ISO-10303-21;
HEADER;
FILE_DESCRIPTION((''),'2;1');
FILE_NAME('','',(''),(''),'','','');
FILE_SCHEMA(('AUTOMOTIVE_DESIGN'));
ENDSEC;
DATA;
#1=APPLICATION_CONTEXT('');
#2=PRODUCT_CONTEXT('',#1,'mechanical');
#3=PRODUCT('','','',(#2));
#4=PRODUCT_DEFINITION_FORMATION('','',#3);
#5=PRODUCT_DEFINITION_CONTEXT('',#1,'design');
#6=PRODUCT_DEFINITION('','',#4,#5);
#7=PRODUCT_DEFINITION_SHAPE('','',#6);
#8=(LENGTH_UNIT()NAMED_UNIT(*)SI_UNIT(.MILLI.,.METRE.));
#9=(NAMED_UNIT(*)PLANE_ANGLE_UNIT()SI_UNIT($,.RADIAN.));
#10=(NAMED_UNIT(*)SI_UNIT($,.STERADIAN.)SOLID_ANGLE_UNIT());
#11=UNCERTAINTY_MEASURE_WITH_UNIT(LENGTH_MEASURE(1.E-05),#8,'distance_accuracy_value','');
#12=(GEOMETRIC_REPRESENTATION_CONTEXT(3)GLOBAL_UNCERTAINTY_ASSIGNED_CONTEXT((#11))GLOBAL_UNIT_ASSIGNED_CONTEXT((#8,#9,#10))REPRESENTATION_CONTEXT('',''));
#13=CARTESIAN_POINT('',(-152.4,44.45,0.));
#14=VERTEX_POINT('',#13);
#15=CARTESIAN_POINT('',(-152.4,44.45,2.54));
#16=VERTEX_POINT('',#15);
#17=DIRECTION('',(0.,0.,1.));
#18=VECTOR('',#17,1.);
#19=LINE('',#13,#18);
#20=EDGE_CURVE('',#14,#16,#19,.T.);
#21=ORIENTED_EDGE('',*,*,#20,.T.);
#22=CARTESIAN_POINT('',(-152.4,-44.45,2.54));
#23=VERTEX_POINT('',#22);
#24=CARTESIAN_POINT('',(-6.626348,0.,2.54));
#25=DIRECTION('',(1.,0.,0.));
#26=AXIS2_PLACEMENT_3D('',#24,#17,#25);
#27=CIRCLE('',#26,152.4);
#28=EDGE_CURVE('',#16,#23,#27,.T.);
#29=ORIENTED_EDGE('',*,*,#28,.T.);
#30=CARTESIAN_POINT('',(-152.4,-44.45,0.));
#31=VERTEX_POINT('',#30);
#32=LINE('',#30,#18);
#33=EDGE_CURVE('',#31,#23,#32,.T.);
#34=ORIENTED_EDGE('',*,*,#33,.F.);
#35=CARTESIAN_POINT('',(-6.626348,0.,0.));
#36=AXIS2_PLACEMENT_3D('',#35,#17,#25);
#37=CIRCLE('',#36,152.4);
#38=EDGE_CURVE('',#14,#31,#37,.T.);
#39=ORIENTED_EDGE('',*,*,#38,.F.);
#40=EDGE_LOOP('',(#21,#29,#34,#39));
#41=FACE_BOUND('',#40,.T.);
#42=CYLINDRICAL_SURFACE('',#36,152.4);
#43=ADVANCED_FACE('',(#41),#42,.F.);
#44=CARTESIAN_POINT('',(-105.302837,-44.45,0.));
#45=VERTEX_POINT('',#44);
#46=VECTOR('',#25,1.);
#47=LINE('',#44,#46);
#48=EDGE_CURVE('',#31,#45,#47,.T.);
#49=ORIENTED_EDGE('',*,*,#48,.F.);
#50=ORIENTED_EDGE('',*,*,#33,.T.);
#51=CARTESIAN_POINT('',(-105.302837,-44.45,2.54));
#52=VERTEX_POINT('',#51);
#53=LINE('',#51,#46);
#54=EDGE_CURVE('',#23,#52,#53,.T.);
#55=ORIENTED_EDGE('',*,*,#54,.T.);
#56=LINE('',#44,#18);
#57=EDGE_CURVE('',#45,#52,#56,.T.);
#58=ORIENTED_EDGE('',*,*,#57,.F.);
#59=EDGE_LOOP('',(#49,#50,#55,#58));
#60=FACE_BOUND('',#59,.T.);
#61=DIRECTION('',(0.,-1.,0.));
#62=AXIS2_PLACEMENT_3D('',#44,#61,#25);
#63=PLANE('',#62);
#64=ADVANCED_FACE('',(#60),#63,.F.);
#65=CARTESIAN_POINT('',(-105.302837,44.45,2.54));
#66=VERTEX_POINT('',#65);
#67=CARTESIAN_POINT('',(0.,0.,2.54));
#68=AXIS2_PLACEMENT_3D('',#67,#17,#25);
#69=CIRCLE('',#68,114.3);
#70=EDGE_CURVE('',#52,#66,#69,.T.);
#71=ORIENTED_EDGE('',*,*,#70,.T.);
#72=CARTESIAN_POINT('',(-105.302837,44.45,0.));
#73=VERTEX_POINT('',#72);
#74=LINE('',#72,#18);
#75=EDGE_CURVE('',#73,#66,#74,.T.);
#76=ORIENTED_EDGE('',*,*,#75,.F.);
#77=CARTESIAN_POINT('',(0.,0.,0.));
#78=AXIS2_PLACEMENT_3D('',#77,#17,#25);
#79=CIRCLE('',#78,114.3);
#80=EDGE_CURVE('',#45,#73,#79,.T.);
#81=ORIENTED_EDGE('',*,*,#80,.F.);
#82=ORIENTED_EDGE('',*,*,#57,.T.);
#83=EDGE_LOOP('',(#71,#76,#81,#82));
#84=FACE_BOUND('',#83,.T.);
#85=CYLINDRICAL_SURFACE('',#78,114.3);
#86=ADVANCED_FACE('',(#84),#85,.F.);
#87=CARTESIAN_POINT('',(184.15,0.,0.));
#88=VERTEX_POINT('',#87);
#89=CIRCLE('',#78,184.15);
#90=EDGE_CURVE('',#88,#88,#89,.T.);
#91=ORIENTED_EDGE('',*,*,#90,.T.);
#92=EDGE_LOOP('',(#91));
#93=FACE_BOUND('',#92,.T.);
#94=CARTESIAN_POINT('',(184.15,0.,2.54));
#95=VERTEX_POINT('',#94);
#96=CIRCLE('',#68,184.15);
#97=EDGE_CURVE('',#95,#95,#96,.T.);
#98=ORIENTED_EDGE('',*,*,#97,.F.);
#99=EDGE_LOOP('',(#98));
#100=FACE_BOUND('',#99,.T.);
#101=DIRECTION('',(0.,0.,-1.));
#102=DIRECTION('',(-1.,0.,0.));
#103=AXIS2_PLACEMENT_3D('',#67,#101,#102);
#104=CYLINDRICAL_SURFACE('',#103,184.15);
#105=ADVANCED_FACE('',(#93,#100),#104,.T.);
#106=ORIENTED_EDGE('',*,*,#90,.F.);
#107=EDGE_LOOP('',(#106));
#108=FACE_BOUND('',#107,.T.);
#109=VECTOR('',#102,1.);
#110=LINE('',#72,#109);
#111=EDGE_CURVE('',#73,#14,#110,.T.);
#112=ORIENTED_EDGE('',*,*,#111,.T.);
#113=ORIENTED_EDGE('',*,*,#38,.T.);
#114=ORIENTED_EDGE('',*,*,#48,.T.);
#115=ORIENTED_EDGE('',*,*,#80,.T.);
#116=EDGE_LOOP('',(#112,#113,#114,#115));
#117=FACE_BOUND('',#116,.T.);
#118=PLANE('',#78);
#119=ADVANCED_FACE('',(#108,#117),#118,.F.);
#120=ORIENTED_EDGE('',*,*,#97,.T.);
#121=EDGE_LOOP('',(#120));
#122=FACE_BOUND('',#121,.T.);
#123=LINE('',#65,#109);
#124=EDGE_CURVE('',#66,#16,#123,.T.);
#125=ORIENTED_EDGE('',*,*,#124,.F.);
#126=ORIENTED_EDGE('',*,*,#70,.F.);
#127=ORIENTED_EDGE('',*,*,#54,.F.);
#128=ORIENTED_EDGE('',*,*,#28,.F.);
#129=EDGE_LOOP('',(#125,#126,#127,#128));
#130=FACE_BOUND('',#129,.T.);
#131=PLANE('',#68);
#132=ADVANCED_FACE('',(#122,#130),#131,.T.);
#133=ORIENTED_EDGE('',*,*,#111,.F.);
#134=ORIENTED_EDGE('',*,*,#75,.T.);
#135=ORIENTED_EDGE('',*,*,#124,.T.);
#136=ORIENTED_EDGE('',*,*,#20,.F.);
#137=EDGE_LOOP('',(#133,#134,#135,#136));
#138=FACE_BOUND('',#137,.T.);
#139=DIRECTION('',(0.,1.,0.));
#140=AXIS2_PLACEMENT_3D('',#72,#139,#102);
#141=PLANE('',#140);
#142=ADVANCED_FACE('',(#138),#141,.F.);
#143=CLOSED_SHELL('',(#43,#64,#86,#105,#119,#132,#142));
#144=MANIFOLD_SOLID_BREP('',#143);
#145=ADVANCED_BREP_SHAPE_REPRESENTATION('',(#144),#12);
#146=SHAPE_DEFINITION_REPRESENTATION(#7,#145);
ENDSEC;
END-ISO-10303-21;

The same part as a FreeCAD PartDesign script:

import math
import FreeCAD as App
import Part
import Sketcher
Q = App.Units.Quantity

doc = App.newDocument("Part")
body = doc.addObject("PartDesign::Body", "Body")

sketch1 = doc.addObject("Sketcher::SketchObject", "Sketch")
body.addObject(sketch1)
sketch1.AttachmentSupport = (doc.XY_Plane, [""])
sketch1.MapMode = "FlatFace"
sketch1.addGeometry(Part.Circle(App.Vector(0, 0, 0), App.Vector(0, 0, 1), 184.15), False)
sketch1.addConstraint(Sketcher.Constraint("Coincident", 0, 3, -1, 1))
sketch1.addConstraint(Sketcher.Constraint("Diameter", 0, Q("14.5 in")))
pad1 = doc.addObject("PartDesign::Pad", "Pad")
body.addObject(pad1)
pad1.Profile = sketch1
pad1.Length = Q("0.1 in")

sketch2 = doc.addObject("Sketcher::SketchObject", "Sketch001")
body.addObject(sketch2)
sketch2.AttachmentSupport = (doc.XY_Plane, [""])
sketch2.MapMode = "FlatFace"
sketch2.AttachmentOffset = App.Placement(App.Vector(0, 0, 0.1 * 25.4), App.Rotation())
sketch2.addGeometry(Part.LineSegment(App.Vector(-152.4, -44.45, 0), App.Vector(-105.302837, -44.45, 0)), False)
sketch2.addGeometry(Part.ArcOfCircle(Part.Circle(App.Vector(0, 0, 0), App.Vector(0, 0, 1), 114.3), math.radians(-157.11462), math.radians(157.11462)), False)
sketch2.addGeometry(Part.LineSegment(App.Vector(-105.302837, 44.45, 0), App.Vector(-152.4, 44.45, 0)), False)
sketch2.addGeometry(Part.ArcOfCircle(Part.Circle(App.Vector(-6.626348, 0, 0), App.Vector(0, 0, 1), 152.4), math.radians(163.042237), math.radians(196.957763)), False)
sketch2.addConstraint(Sketcher.Constraint("Coincident", 0, 2, 1, 1))
sketch2.addConstraint(Sketcher.Constraint("Coincident", 1, 2, 2, 1))
sketch2.addConstraint(Sketcher.Constraint("Coincident", 2, 2, 3, 1))
sketch2.addConstraint(Sketcher.Constraint("Coincident", 3, 2, 0, 1))
sketch2.addConstraint(Sketcher.Constraint("Horizontal", 0))
sketch2.addConstraint(Sketcher.Constraint("Horizontal", 2))
sketch2.addConstraint(Sketcher.Constraint("Coincident", 1, 3, -1, 1))
sketch2.addConstraint(Sketcher.Constraint("Symmetric", 2, 2, 3, 2, -1))
sketch2.addConstraint(Sketcher.Constraint("Radius", 3, Q("6 in")))
sketch2.addConstraint(Sketcher.Constraint("Radius", 1, Q("4.5 in")))
sketch2.addConstraint(Sketcher.Constraint("DistanceX", 2, 2, -1, 1, Q("6 in")))
sketch2.addConstraint(Sketcher.Constraint("DistanceY", 0, 2, 1, 2, Q("3.5 in")))
pocket1 = doc.addObject("PartDesign::Pocket", "Pocket")
body.addObject(pocket1)
pocket1.Profile = sketch2
pocket1.Type = "ThroughAll"
pocket1.Midplane = True

doc.recompute()
